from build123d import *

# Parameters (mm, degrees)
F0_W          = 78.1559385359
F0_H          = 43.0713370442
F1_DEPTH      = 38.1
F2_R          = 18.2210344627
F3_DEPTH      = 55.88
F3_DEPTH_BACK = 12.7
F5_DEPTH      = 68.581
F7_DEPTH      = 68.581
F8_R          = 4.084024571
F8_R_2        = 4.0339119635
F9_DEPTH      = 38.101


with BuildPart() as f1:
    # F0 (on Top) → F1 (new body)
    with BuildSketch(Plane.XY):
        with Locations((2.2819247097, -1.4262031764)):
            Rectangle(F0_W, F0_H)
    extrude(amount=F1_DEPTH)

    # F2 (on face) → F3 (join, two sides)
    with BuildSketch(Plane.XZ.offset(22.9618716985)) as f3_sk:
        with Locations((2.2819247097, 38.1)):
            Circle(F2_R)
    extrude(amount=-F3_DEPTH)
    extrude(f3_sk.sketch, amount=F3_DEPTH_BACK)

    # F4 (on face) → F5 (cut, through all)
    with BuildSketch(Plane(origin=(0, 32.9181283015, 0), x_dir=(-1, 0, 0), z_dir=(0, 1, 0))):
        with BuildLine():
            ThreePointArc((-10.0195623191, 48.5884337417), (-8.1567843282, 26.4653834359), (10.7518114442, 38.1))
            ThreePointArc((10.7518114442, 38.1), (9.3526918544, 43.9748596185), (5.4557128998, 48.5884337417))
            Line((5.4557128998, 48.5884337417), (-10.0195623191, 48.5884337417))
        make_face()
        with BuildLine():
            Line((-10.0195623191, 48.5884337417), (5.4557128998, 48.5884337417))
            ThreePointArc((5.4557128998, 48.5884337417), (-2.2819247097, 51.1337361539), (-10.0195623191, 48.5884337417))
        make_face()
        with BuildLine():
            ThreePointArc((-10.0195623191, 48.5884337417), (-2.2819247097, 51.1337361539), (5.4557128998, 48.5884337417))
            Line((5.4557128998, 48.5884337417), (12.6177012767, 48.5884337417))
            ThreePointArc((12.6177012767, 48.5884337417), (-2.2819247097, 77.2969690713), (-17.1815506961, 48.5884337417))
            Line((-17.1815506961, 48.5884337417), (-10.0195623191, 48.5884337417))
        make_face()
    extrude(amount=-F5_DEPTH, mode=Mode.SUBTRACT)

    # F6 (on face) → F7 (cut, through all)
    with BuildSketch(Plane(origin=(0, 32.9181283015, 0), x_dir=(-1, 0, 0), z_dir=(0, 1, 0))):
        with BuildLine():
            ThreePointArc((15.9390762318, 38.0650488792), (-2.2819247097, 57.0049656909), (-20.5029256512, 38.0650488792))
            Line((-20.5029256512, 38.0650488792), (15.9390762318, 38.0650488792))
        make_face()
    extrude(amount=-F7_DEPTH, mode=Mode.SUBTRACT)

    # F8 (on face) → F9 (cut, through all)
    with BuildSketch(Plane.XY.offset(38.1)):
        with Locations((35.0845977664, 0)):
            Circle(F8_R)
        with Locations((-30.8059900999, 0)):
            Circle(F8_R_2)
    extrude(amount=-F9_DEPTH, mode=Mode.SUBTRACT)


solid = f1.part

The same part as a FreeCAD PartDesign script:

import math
import FreeCAD as App
import Part
import Sketcher

V = App.Vector
Q = App.Units.Quantity

doc = App.newDocument("Part")
body = doc.addObject("PartDesign::Body", "Body")

sketch1 = body.newObject("Sketcher::SketchObject", "Sketch")
sketch1.AttachmentSupport = (doc.getObject("XY_Plane"), [""])
sketch1.MapMode = "FlatFace"
sketch1.addGeometry([
    Part.LineSegment(V(-37, 20, 0), V(-37, -23, 0)),
    Part.LineSegment(V(-37, -23, 0), V(41, -23, 0)),
    Part.LineSegment(V(41, -23, 0), V(41, 20, 0)),
    Part.LineSegment(V(41, 20, 0), V(-37, 20, 0)),
], False)
sketch1.addConstraint([
    Sketcher.Constraint("Coincident", 0, 2, 1, 1),
    Sketcher.Constraint("Coincident", 1, 2, 2, 1),
    Sketcher.Constraint("Coincident", 2, 2, 3, 1),
    Sketcher.Constraint("Coincident", 3, 2, 0, 1),
    Sketcher.Constraint("Vertical", 0),
    Sketcher.Constraint("Horizontal", 1),
    Sketcher.Constraint("Vertical", 2),
    Sketcher.Constraint("Horizontal", 3),
    Sketcher.Constraint("DistanceX", 1, 1, 1, 2, 78.155939),
    Sketcher.Constraint("DistanceY", 0, 2, 0, 1, 43.071337),
    Sketcher.Constraint("DistanceY", 0, 2, -1, 1, 22.961872),
    Sketcher.Constraint("DistanceX", 0, 2, -1, 1, 36.796045),
])
pad1 = body.newObject("PartDesign::Pad", "Pad")
pad1.Profile = sketch1
pad1.Length = Q("1.5 in")

sketch2 = body.newObject("Sketcher::SketchObject", "Sketch001")
sketch2.AttachmentSupport = (doc.getObject("XZ_Plane"), [""])
sketch2.MapMode = "FlatFace"
sketch2.AttachmentOffset = App.Placement(V(0, 0, 22.961872), App.Rotation())
sketch2.addGeometry(Part.Circle(V(2, 38, 0), V(0, 0, 1), 18), False)
sketch2.addConstraint([
    Sketcher.Constraint("DistanceY", -1, 1, 0, 3, Q("1.5 in")),
    Sketcher.Constraint("Diameter", 0, 36.442069),
    Sketcher.Constraint("DistanceX", -1, 1, 0, 3, 2.281925),
])
pad2 = body.newObject("PartDesign::Pad", "Pad001")
pad2.Profile = sketch2
pad2.Type = "TwoLengths"
pad2.Length = Q("2.2 in")
pad2.Length2 = Q("0.5 in")
pad2.Reversed = True

sketch3 = body.newObject("Sketcher::SketchObject", "Sketch002")
sketch3.AttachmentSupport = (doc.getObject("XZ_Plane"), [""])
sketch3.MapMode = "FlatFace"
sketch3.AttachmentOffset = App.Placement(V(0, 0, -32.918128), App.Rotation())
sketch3.addGeometry([
    Part.ArcOfCircle(Part.Circle(V(2, 38, 0), V(0, 0, 1), 13), math.radians(180), math.radians(414)),
    Part.ArcOfCircle(Part.Circle(V(2, 38, 0), V(0, 0, 1), 13), math.radians(126), math.radians(180)),
    Part.LineSegment(V(-5, 49, 0), V(-13, 49, 0)),
    Part.ArcOfCircle(Part.Circle(V(2, 59, 0), V(0, 0, 1), 18), math.radians(-35), math.radians(215)),
    Part.LineSegment(V(17, 49, 0), V(10, 49, 0)),
], False)
sketch3.addConstraint([
    Sketcher.Constraint("Tangent", 0, 1, 1, 2),
    Sketcher.Constraint("Coincident", 1, 1, 2, 1),
    Sketcher.Constraint("Coincident", 2, 2, 3, 2),
    Sketcher.Constraint("Coincident", 3, 1, 4, 1),
    Sketcher.Constraint("Coincident", 4, 2, 0, 2),
    Sketcher.Constraint("Horizontal", 2),
    Sketcher.Constraint("Horizontal", 4),
    Sketcher.Constraint("Equal", 0, 1),
    Sketcher.Constraint("Horizontal", 1, 3, 0, 1),
    Sketcher.Constraint("Horizontal", 2, 2, 3, 1),
    Sketcher.Constraint("Vertical", 1, 3, 3, 3),
    Sketcher.Constraint("DistanceY", -1, 1, 0, 3, Q("1.5 in")),
    Sketcher.Constraint("Radius", 0, 13.033736),
    Sketcher.Constraint("Radius", 3, 18.220694),
    Sketcher.Constraint("DistanceX", 2, 2, 2, 1, 7.161988),
    Sketcher.Constraint("DistanceX", 2, 2, -1, 1, 12.617701),
    Sketcher.Constraint("DistanceX", 0, 1, 1, 1, 5.296099),
])
pocket1 = body.newObject("PartDesign::Pocket", "Pocket")
pocket1.Profile = sketch3
pocket1.Type = "ThroughAll"
pocket1.Reversed = True

sketch4 = body.newObject("Sketcher::SketchObject", "Sketch003")
sketch4.AttachmentSupport = (doc.getObject("XZ_Plane"), [""])
sketch4.MapMode = "FlatFace"
sketch4.AttachmentOffset = App.Placement(V(0, 0, -32.918128), App.Rotation())
sketch4.addGeometry([
    Part.ArcOfCircle(Part.Circle(V(2, 39, 0), V(0, 0, 1), 18), math.radians(-2), math.radians(182)),
    Part.LineSegment(V(21, 38, 0), V(-16, 38, 0)),
], False)
sketch4.addConstraint([
    Sketcher.Constraint("Coincident", 0, 1, 1, 1),
    Sketcher.Constraint("Coincident", 1, 2, 0, 2),
    Sketcher.Constraint("Horizontal", 1),
    Sketcher.Constraint("DistanceX", 1, 2, 1, 1, 36.442002),
    Sketcher.Constraint("Radius", 0, 18.234645),
    Sketcher.Constraint("DistanceY", -1, 1, 0, 3, 38.770321),
    Sketcher.Constraint("DistanceX", -1, 1, 0, 3, 2.281925),
])
pocket2 = body.newObject("PartDesign::Pocket", "Pocket001")
pocket2.Profile = sketch4
pocket2.Type = "ThroughAll"
pocket2.Reversed = True

sketch5 = body.newObject("Sketcher::SketchObject", "Sketch004")
sketch5.AttachmentSupport = (doc.getObject("XY_Plane"), [""])
sketch5.MapMode = "FlatFace"
sketch5.AttachmentOffset = App.Placement(V(0, 0, 1.5 * 25.4), App.Rotation())
sketch5.addGeometry([
    Part.Circle(V(35.1, 0, 0), V(0, 0, 1), 4.1),
    Part.Circle(V(-30.8, 0, 0), V(0, 0, 1), 4),
], False)
sketch5.addConstraint([
    Sketcher.Constraint("PointOnObject", 0, 3, -1),
    Sketcher.Constraint("PointOnObject", 1, 3, -1),
    Sketcher.Constraint("Diameter", 0, 8.168049),
    Sketcher.Constraint("Diameter", 1, 8.067824),
    Sketcher.Constraint("DistanceX", 1, 3, -1, 1, 30.80599),
    Sketcher.Constraint("DistanceX", -1, 1, 0, 3, 35.084598),
])
pocket3 = body.newObject("PartDesign::Pocket", "Pocket002")
pocket3.Profile = sketch5
pocket3.Type = "ThroughAll"

doc.recompute()
